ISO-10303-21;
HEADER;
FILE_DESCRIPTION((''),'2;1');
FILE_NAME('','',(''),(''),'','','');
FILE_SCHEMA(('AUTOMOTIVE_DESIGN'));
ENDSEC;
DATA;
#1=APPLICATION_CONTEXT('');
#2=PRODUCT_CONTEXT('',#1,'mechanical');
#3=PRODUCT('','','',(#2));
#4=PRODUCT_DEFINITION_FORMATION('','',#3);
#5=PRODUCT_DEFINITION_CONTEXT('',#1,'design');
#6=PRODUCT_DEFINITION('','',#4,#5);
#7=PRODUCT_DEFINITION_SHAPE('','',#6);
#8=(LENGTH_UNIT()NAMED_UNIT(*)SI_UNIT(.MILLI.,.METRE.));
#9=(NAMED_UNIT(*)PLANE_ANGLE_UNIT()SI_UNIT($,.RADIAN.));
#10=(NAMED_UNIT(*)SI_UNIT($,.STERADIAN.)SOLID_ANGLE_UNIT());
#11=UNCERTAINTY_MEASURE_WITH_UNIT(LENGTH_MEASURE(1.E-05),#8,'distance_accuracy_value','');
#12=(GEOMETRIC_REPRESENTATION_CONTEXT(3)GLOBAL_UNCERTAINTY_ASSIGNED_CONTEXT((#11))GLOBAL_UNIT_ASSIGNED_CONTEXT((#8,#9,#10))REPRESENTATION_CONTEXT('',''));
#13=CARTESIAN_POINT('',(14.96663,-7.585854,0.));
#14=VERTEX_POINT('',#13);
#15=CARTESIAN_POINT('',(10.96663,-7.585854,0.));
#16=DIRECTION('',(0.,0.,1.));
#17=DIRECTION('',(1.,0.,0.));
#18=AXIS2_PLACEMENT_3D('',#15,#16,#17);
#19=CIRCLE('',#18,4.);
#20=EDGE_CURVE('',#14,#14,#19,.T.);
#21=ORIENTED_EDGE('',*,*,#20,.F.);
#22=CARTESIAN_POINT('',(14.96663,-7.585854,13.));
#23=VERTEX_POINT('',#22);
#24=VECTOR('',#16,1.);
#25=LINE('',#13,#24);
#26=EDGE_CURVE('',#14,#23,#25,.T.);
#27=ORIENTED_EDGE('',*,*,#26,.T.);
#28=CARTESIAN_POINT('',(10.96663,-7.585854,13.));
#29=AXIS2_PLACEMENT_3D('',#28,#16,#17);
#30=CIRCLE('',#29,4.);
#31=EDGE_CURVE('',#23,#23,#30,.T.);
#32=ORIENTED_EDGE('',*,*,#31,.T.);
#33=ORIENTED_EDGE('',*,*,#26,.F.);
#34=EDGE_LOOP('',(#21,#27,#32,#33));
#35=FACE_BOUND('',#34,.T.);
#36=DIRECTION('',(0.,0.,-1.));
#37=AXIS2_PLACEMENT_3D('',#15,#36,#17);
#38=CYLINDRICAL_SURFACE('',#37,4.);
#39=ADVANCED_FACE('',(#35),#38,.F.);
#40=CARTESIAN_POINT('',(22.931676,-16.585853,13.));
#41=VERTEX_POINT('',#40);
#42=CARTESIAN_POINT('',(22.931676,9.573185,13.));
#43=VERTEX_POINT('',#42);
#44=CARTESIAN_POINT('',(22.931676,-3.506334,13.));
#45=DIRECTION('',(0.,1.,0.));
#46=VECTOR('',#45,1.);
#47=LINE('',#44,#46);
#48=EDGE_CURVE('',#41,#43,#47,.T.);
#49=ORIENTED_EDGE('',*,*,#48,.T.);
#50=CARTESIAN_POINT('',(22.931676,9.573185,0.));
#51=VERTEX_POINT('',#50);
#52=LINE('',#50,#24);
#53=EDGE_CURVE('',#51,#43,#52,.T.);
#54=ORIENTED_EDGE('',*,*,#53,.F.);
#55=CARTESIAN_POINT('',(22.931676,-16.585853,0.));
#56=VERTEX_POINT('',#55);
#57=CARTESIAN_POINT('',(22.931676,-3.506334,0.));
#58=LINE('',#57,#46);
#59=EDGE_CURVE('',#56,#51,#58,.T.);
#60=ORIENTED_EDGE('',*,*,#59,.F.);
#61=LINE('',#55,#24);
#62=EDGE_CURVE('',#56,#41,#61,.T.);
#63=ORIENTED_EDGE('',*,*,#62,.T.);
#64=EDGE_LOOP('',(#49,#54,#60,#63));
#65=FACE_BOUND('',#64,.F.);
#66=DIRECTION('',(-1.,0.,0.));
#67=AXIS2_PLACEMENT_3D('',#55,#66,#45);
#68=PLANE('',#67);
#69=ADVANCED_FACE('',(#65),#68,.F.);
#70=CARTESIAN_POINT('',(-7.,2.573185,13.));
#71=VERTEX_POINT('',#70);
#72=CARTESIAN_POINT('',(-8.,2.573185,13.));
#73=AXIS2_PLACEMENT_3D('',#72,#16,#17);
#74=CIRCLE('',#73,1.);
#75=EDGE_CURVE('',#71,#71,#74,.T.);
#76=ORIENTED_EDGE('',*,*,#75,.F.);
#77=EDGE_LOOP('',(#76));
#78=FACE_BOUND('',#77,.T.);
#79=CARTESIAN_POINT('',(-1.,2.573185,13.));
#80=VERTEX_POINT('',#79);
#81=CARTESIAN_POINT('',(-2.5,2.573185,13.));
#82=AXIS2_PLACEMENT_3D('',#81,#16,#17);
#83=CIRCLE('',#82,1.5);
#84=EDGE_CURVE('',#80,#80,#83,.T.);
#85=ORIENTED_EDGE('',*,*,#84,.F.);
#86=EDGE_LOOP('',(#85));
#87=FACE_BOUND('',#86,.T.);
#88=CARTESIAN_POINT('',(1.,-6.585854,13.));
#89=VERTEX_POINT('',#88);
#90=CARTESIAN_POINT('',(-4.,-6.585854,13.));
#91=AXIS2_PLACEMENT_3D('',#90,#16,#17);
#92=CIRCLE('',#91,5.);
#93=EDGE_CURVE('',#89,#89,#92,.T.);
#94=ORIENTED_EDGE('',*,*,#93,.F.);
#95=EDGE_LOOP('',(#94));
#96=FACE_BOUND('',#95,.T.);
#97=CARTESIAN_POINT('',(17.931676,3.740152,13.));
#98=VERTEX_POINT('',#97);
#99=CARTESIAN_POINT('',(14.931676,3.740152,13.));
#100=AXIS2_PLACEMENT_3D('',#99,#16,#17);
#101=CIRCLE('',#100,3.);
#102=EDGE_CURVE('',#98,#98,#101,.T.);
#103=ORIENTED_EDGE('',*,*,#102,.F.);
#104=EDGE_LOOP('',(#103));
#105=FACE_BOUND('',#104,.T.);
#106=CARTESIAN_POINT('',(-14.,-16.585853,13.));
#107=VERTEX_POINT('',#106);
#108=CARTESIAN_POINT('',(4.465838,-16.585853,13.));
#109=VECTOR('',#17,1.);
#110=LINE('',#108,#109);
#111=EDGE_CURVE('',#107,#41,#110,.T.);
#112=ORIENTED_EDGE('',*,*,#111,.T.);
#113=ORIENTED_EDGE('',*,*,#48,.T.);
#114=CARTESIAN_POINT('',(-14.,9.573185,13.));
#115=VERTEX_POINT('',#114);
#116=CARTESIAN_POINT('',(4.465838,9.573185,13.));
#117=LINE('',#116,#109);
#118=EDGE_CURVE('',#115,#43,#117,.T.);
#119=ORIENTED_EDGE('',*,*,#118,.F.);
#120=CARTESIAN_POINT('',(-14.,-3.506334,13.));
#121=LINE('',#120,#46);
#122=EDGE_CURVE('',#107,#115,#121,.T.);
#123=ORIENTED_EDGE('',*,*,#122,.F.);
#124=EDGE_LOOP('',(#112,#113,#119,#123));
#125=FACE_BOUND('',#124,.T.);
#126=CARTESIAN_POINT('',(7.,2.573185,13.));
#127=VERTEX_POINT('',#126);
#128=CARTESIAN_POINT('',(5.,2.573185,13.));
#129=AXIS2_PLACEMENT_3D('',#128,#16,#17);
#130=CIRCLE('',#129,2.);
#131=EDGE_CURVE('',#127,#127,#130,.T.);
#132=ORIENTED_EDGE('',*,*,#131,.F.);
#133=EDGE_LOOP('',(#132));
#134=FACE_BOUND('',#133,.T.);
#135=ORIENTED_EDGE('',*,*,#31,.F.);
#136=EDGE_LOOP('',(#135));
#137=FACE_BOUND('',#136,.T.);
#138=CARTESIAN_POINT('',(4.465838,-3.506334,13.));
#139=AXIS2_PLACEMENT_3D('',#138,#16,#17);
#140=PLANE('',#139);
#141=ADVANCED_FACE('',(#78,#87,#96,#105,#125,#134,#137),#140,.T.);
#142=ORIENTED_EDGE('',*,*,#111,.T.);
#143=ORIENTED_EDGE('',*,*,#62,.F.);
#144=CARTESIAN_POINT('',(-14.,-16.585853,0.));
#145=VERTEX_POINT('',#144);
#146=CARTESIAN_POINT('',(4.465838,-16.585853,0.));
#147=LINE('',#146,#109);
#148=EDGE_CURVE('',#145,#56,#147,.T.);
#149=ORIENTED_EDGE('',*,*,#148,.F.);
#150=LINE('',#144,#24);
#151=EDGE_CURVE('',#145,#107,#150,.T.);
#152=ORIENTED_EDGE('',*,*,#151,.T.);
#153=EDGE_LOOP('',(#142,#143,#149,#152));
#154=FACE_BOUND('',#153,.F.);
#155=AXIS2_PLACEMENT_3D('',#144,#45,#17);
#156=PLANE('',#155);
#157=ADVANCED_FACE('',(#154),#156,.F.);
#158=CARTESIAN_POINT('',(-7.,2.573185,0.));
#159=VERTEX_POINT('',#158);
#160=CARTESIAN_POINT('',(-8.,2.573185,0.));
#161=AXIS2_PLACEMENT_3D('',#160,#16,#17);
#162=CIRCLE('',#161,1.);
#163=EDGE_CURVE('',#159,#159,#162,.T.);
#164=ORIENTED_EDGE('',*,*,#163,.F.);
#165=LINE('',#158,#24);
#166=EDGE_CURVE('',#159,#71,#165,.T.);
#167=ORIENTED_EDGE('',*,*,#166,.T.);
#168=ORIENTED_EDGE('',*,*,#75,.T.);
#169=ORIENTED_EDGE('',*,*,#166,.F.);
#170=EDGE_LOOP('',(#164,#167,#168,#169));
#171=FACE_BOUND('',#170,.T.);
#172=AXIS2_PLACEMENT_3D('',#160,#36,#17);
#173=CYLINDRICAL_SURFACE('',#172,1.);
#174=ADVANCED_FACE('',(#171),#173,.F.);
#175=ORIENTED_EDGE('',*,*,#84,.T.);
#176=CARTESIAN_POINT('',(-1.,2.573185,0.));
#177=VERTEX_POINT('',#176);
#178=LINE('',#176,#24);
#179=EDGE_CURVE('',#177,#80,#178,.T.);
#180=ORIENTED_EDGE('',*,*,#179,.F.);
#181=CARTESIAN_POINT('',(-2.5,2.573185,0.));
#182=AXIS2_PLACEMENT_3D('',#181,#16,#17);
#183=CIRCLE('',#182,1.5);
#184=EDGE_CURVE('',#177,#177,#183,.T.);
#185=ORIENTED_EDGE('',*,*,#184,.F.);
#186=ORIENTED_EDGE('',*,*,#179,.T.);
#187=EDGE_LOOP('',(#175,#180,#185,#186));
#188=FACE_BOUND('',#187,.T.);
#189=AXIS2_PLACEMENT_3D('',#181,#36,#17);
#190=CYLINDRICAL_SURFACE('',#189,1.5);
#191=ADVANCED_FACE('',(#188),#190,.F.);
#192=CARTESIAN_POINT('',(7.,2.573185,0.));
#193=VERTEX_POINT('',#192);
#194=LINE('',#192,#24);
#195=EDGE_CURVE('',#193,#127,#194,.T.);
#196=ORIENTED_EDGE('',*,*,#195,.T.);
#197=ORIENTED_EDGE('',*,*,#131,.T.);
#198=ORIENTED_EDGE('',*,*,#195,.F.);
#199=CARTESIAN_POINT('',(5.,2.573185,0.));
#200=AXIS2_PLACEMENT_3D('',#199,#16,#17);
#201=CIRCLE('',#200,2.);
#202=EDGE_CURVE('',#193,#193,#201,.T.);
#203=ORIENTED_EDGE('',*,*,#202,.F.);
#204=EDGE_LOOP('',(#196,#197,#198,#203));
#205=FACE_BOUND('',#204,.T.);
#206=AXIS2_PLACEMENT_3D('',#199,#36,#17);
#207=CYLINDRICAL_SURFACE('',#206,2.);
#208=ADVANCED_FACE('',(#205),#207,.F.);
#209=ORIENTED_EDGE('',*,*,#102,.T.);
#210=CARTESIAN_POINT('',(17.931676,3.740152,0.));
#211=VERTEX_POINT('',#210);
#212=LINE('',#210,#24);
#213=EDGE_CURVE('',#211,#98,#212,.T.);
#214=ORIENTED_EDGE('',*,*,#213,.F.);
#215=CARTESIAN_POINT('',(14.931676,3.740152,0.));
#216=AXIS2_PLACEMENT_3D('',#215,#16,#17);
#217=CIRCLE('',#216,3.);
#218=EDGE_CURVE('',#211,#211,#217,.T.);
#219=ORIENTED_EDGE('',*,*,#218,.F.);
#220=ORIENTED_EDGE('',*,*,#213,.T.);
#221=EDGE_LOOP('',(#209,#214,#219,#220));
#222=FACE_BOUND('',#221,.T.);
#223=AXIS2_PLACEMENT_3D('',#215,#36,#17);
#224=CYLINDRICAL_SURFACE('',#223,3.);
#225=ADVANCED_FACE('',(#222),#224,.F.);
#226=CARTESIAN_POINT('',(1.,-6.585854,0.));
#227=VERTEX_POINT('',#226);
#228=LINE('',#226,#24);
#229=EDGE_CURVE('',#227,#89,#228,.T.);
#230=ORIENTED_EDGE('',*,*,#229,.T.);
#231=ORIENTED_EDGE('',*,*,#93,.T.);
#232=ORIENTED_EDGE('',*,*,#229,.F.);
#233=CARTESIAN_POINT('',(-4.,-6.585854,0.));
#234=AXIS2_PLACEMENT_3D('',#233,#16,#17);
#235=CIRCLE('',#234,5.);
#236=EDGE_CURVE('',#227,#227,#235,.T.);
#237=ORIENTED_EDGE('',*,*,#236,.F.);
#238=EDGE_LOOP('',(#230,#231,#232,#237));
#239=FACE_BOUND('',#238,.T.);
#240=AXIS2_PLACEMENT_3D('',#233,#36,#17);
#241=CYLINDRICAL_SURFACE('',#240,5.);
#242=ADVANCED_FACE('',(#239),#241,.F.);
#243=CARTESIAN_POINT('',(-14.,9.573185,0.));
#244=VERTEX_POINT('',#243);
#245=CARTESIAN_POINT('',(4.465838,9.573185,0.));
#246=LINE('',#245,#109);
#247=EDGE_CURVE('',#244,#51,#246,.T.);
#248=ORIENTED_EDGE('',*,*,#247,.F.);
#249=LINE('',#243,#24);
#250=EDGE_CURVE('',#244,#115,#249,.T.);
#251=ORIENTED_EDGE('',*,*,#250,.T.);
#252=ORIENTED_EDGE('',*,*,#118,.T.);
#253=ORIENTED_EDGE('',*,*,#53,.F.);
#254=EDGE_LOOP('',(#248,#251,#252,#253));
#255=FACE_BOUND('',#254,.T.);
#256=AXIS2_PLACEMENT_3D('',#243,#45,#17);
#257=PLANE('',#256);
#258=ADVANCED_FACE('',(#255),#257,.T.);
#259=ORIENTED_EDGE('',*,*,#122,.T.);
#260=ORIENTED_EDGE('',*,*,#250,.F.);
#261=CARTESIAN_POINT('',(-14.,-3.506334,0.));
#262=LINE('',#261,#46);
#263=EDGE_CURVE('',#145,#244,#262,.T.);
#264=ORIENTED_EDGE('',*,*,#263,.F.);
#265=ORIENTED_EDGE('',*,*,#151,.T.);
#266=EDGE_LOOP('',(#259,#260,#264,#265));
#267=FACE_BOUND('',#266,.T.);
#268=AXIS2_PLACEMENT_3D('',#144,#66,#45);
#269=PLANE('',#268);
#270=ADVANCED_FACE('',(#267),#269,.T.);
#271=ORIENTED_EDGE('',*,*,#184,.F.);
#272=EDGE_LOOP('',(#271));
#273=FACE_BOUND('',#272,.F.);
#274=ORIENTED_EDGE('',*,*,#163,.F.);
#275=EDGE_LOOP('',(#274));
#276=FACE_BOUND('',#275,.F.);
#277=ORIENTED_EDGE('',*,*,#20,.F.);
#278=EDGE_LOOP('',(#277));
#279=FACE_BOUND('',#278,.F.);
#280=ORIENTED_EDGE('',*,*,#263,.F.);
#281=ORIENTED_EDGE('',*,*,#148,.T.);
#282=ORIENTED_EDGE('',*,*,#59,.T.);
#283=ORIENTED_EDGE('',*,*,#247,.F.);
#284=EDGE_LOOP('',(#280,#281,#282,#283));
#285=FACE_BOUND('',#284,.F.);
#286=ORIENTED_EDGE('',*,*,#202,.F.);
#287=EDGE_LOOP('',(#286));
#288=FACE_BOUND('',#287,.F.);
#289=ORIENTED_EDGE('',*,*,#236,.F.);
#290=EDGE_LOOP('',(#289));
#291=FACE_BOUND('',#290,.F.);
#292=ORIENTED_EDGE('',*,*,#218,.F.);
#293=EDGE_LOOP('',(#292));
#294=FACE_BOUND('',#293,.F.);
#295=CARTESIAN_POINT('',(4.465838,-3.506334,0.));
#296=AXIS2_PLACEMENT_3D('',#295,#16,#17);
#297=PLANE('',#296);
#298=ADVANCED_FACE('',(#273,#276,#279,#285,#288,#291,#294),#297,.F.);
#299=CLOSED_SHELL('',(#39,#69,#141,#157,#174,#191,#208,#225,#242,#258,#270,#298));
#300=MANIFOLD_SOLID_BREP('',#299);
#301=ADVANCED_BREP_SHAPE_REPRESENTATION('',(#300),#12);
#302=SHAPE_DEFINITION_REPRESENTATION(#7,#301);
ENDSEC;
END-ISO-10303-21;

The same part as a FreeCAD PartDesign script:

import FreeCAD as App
import Part
import Sketcher

V = App.Vector


def add_polygon(sketch, points):
    """Adds a closed chain of lines whose ends are joined by coincident constraints."""
    first, n = sketch.GeometryCount, len(points)
    for a, b in zip(points, points[1:] + points[:1]):
        sketch.addGeometry(Part.LineSegment(App.Vector(*a, 0), App.Vector(*b, 0)), False)
    for i in range(n):
        sketch.addConstraint(Sketcher.Constraint("Coincident", first + i, 2, first + (i + 1) % n, 1))

doc = App.newDocument("Part")
params = doc.addObject("Spreadsheet::Sheet", "Params")
for row, (alias, value) in enumerate([
    ("sketch1_diameter", "10 mm"),
    ("sketch1_diameter2", "8 mm"),
    ("sketch1_diameter3", "2 mm"),
    ("sketch1_diameter4", "3 mm"),
    ("sketch1_diameter5", "4 mm"),
    ("pad1_length", "13 mm"),
], start=1):
    params.set(f"A{row}", alias)
    params.set(f"B{row}", "=" + value)
    params.setAlias(f"B{row}", alias)

body = doc.addObject("PartDesign::Body", "Body")

# Sketch on XY plane
sketch1 = body.newObject("Sketcher::SketchObject", "Sketch")
sketch1.AttachmentSupport = (doc.getObject("XY_Plane"), [""])
sketch1.MapMode = "FlatFace"
add_polygon(sketch1, [(-14, 9.573185), (-14, -16.585853), (22.931676, -16.585853), (22.931676, 9.573185)])  # lines 0-3
sketch1.addGeometry(Part.Circle(V(-4, -6.585854, 0), V(0, 0, 1), 5), False)  # 4
sketch1.addGeometry(Part.Circle(V(10.96663, -7.585854, 0), V(0, 0, 1), 4), False)  # 5
sketch1.addGeometry(Part.Circle(V(-8, 2.573185, 0), V(0, 0, 1), 1), False)  # 6
sketch1.addGeometry(Part.Circle(V(-2.5, 2.573185, 0), V(0, 0, 1), 1.5), False)  # 7
sketch1.addGeometry(Part.Circle(V(5, 2.573185, 0), V(0, 0, 1), 2), False)  # 8
sketch1.addGeometry(Part.Circle(V(14.931676, 3.740152, 0), V(0, 0, 1), 3), False)  # 9
sketch1.addConstraint(Sketcher.Constraint("Vertical", 0))
sketch1.addConstraint(Sketcher.Constraint("Horizontal", 1))
sketch1.addConstraint(Sketcher.Constraint("Vertical", 2))
sketch1.addConstraint(Sketcher.Constraint("Horizontal", 3))
sketch1.addConstraint(Sketcher.Constraint("Horizontal", 6, 3, 7, 3))
sketch1.addConstraint(Sketcher.Constraint("Horizontal", 7, 3, 8, 3))
sketch1.addConstraint(Sketcher.Constraint("Diameter", 4, 10.0))
sketch1.addConstraint(Sketcher.Constraint("Diameter", 5, 8.0))
sketch1.addConstraint(Sketcher.Constraint("Diameter", 6, 2.0))
sketch1.addConstraint(Sketcher.Constraint("Diameter", 7, 3.0))
sketch1.addConstraint(Sketcher.Constraint("Diameter", 8, 4.0))
sketch1.addConstraint(Sketcher.Constraint("Diameter", 9, 6.0))
sketch1.addConstraint(Sketcher.Constraint("DistanceX", 4, 3, -1, 1, 4.0))
sketch1.addConstraint(Sketcher.Constraint("DistanceX", 6, 3, -1, 1, 8.0))
sketch1.addConstraint(Sketcher.Constraint("DistanceX", -1, 1, 8, 3, 5.0))
sketch1.addConstraint(Sketcher.Constraint("DistanceX", 0, 2, -1, 1, 14.0))
sketch1.addConstraint(Sketcher.Constraint("DistanceY", 5, 3, 4, 3, 1.0))
sketch1.addConstraint(Sketcher.Constraint("DistanceY", 0, 2, 4, 3, 9.999999))
sketch1.addConstraint(Sketcher.Constraint("DistanceX", 9, 3, 1, 2, 8.0))
sketch1.addConstraint(Sketcher.Constraint("DistanceY", 8, 3, 2, 2, 7.0))
sketch1.addConstraint(Sketcher.Constraint("DistanceX", 7, 3, -1, 1, 2.5))
sketch1.addConstraint(Sketcher.Constraint("DistanceY", 0, 2, 0, 1, 26.159039))
sketch1.addConstraint(Sketcher.Constraint("DistanceX", 1, 1, 1, 2, 36.931676))
sketch1.addConstraint(Sketcher.Constraint("DistanceX", -1, 1, 5, 3, 10.96663))
sketch1.addConstraint(Sketcher.Constraint("DistanceY", 4, 3, -1, 1, 6.585854))
sketch1.addConstraint(Sketcher.Constraint("DistanceY", -1, 1, 9, 3, 3.740152))
sketch1.setExpression("Constraints[10]", "Params.sketch1_diameter")
sketch1.setExpression("Constraints[11]", "Params.sketch1_diameter2")
sketch1.setExpression("Constraints[12]", "Params.sketch1_diameter3")
sketch1.setExpression("Constraints[13]", "Params.sketch1_diameter4")
sketch1.setExpression("Constraints[14]", "Params.sketch1_diameter5")
pad1 = body.newObject("PartDesign::Pad", "Pad")
pad1.Profile = sketch1
pad1.setExpression("Length", "Params.pad1_length")

doc.recompute()
